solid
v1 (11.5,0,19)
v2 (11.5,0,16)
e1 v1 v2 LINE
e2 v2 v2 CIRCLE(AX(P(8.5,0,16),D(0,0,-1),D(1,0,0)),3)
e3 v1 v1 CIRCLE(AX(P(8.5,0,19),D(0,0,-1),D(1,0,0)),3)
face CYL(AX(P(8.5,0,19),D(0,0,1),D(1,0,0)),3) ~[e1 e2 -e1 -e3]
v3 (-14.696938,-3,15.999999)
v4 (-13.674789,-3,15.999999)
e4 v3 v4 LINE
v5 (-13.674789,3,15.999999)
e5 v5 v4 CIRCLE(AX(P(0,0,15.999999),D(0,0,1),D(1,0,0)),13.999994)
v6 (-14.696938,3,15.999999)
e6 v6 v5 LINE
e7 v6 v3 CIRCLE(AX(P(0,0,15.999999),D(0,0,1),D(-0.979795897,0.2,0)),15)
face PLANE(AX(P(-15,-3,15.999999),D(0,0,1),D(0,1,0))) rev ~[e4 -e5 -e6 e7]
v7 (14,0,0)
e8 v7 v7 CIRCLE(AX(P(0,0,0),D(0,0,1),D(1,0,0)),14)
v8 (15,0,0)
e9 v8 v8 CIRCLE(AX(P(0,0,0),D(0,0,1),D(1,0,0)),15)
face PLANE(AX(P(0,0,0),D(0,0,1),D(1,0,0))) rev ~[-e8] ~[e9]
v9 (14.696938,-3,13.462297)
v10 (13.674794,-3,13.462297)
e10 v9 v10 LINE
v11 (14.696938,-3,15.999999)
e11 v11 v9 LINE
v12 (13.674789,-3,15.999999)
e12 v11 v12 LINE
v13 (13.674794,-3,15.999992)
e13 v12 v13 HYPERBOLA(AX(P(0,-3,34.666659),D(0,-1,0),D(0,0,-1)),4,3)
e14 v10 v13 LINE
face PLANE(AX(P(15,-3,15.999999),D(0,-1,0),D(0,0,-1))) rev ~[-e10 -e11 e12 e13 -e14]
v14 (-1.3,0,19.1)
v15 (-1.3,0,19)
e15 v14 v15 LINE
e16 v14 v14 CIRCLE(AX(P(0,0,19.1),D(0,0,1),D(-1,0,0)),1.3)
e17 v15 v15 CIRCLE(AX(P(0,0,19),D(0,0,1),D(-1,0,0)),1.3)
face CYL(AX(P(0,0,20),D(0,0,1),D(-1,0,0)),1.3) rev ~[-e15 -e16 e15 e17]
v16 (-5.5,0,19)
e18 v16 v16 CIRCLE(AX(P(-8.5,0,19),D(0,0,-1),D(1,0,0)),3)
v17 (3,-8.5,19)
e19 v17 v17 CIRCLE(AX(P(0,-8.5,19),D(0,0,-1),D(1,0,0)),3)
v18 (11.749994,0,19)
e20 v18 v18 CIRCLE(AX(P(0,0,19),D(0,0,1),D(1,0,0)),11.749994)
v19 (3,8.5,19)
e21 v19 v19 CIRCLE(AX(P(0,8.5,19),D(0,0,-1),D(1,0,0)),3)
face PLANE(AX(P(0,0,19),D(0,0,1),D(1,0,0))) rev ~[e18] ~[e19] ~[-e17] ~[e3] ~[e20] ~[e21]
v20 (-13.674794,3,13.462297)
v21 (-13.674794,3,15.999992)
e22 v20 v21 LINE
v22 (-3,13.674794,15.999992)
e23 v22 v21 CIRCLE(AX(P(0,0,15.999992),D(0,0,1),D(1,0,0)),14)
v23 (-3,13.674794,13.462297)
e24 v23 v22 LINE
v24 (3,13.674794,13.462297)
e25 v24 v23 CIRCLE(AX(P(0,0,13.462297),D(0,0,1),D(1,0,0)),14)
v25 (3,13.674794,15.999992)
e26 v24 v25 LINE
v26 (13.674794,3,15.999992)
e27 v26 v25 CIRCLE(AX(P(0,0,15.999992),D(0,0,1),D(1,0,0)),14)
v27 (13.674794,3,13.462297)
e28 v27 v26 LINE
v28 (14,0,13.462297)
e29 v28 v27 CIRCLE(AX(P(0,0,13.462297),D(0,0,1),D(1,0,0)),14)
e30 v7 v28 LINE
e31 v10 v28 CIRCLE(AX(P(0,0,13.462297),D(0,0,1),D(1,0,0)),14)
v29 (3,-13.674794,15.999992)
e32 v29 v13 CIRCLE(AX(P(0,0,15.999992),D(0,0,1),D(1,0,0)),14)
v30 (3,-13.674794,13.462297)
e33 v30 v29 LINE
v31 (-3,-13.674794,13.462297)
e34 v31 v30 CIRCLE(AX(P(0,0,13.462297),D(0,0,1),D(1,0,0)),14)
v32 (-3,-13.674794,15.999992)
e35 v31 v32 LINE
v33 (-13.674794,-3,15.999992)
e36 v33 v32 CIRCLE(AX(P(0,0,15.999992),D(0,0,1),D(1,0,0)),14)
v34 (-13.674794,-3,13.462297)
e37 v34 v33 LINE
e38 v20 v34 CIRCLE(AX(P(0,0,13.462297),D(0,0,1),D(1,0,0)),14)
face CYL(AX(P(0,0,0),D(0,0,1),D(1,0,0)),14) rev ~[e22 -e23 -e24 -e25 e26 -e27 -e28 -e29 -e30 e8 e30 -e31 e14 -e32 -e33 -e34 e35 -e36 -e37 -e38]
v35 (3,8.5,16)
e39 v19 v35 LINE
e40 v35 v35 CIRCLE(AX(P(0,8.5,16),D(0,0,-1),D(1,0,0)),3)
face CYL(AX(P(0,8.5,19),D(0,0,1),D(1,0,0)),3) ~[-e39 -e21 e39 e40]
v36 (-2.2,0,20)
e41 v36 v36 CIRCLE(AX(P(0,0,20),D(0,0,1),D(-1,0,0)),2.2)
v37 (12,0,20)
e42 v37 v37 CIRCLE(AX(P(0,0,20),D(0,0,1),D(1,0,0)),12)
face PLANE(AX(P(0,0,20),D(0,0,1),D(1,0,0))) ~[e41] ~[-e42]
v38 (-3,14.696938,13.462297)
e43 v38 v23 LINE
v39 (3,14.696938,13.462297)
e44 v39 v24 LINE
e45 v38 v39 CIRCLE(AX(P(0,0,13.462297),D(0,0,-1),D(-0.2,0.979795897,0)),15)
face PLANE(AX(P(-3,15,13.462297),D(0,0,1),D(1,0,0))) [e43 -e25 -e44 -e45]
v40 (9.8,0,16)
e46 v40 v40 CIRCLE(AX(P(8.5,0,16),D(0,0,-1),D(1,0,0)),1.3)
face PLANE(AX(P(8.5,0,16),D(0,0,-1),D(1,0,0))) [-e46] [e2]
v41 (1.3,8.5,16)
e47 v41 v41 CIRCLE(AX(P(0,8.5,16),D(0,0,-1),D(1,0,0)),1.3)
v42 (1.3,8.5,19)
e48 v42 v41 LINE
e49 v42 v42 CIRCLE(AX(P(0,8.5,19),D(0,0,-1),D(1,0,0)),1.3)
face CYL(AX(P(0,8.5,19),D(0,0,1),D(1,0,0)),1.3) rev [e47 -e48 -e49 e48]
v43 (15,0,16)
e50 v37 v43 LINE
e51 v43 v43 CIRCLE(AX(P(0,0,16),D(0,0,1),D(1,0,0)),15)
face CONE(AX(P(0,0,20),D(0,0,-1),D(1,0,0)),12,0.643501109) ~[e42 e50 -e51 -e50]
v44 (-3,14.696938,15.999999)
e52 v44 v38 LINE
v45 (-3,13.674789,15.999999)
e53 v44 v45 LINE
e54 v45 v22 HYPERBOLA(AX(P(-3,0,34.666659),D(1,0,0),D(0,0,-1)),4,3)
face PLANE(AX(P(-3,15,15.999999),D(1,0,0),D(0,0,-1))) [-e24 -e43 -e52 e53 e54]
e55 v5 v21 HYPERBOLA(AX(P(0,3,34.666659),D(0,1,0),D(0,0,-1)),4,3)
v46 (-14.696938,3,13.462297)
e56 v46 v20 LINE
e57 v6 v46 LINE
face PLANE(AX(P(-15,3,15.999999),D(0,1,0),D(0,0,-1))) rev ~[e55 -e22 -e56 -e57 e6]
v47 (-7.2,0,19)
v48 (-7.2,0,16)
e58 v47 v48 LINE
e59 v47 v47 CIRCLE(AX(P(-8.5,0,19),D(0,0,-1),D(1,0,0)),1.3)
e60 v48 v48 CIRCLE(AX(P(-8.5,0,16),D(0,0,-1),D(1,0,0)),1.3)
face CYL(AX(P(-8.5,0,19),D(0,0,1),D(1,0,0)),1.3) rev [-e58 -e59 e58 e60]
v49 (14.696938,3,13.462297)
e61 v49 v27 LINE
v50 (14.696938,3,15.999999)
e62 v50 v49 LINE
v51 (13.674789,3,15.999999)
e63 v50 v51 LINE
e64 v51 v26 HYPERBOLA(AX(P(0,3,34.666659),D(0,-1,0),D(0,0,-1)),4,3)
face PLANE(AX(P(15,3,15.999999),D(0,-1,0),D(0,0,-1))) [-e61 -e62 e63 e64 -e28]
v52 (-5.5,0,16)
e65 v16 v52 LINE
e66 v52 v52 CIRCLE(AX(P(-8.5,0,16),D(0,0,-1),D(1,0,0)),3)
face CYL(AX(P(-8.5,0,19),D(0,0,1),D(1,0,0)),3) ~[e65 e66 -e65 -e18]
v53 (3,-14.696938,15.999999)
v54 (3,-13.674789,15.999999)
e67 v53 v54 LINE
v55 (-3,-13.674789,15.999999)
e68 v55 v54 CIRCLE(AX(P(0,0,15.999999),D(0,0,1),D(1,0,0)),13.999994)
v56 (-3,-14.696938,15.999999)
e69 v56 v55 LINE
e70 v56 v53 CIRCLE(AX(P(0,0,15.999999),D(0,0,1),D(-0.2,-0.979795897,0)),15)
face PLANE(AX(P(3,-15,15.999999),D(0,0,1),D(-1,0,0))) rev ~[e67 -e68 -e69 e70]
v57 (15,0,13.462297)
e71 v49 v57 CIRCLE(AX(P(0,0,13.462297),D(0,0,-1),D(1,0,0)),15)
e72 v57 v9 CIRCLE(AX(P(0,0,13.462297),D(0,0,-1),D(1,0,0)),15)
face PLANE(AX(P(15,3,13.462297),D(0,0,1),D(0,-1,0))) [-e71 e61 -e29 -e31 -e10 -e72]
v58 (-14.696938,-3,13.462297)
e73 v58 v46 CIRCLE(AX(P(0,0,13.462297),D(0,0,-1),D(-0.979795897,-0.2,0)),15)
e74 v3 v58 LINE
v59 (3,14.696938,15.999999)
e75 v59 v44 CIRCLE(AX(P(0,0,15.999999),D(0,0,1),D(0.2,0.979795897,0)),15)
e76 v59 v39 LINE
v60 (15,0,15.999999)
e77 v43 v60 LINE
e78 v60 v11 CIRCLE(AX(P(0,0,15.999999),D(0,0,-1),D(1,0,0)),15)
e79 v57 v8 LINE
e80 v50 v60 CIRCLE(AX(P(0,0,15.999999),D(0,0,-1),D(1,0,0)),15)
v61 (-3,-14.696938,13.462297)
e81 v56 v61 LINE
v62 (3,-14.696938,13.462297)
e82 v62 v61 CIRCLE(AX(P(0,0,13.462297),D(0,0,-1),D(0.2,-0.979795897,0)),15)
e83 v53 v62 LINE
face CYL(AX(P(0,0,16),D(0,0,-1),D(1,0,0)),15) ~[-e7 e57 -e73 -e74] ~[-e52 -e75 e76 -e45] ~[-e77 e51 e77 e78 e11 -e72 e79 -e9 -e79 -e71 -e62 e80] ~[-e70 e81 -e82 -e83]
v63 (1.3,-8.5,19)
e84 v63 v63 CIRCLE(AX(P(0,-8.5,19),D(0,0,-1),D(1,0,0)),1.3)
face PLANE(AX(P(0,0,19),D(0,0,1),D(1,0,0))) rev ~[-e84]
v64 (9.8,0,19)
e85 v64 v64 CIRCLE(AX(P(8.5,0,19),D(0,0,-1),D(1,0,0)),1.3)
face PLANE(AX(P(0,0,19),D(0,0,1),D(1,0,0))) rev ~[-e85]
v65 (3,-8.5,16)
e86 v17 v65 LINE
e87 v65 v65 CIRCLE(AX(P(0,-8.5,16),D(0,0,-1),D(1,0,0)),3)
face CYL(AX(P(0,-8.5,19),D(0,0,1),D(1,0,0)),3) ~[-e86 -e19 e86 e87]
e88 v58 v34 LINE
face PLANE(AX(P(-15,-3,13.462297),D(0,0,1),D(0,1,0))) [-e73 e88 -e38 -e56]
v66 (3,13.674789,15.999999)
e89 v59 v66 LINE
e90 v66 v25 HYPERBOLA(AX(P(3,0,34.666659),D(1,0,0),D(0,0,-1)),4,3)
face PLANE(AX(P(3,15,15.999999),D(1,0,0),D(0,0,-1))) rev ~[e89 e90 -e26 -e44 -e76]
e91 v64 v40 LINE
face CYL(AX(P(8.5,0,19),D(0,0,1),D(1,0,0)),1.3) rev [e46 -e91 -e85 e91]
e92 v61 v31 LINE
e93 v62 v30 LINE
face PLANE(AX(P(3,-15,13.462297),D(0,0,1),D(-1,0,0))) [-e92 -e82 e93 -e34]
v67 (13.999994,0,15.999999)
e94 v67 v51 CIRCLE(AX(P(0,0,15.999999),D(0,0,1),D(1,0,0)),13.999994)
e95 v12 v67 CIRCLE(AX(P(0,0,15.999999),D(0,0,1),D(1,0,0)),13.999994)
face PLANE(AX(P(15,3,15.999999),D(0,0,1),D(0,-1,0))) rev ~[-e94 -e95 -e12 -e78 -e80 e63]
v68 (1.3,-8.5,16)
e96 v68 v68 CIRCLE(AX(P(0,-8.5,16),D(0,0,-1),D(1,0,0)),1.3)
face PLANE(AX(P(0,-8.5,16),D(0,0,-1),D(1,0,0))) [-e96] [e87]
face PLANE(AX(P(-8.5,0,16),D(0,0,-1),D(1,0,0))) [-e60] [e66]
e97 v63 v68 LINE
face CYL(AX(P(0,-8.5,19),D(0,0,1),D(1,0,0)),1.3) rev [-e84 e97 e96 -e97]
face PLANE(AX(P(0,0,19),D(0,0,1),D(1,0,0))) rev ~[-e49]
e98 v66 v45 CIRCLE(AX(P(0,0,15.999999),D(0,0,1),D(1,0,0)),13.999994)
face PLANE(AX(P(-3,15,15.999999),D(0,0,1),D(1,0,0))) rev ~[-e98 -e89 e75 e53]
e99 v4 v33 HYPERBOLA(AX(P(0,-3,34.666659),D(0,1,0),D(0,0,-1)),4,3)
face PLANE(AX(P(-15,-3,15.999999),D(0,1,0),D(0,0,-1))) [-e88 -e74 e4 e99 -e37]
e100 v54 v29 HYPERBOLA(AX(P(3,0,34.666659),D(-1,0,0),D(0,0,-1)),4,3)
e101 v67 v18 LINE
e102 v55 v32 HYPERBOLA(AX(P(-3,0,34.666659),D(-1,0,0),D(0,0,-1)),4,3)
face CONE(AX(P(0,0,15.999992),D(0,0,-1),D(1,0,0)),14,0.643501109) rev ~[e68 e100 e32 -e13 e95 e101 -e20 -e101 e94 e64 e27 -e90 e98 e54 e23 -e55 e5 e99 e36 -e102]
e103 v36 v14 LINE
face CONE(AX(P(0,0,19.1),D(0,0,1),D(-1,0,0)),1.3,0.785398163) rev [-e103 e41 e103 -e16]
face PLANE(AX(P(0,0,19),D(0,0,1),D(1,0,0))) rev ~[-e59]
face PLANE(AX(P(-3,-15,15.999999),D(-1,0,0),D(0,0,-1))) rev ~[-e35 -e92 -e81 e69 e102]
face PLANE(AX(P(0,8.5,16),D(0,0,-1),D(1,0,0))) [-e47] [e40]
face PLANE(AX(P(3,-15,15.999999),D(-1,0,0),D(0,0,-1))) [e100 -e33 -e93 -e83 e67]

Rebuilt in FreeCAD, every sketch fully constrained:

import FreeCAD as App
import Part
import Sketcher
from FreeCAD import Vector


def edges_at(feature, points):
    """Names of the edges that pass closest to the given points."""
    edges = feature.Shape.Edges
    near = lambda p: min(range(len(edges)), key=lambda i: edges[i].distToShape(Part.Vertex(*p))[0])
    return sorted({f"Edge{near(p) + 1}" for p in points})

doc = App.newDocument("Part")
body = doc.addObject("PartDesign::Body", "Body")

sketch1 = doc.addObject("Sketcher::SketchObject", "Sketch")
body.addObject(sketch1)
sketch1.AttachmentSupport = (doc.XZ_Plane, [""])
sketch1.MapMode = "FlatFace"
sketch1.addGeometry([
    Part.LineSegment(Vector(12, 20, 0), Vector(0, 20, 0)),
    Part.LineSegment(Vector(0, 20, 0), Vector(0, 19, 0)),
    Part.LineSegment(Vector(0, 19, 0), Vector(11.7, 19, 0)),
    Part.LineSegment(Vector(11.7, 19, 0), Vector(14, 16, 0)),
    Part.LineSegment(Vector(14, 16, 0), Vector(14, 0, 0)),
    Part.LineSegment(Vector(14, 0, 0), Vector(15, 0, 0)),
    Part.LineSegment(Vector(15, 0, 0), Vector(15, 16, 0)),
    Part.LineSegment(Vector(15, 16, 0), Vector(12, 20, 0)),
], False)
sketch1.addConstraint([
    Sketcher.Constraint("Coincident", 0, 2, 1, 1),
    Sketcher.Constraint("Coincident", 1, 2, 2, 1),
    Sketcher.Constraint("Coincident", 2, 2, 3, 1),
    Sketcher.Constraint("Coincident", 3, 2, 4, 1),
    Sketcher.Constraint("Coincident", 4, 2, 5, 1),
    Sketcher.Constraint("Coincident", 5, 2, 6, 1),
    Sketcher.Constraint("Coincident", 6, 2, 7, 1),
    Sketcher.Constraint("Coincident", 7, 2, 0, 1),
    Sketcher.Constraint("Horizontal", 0),
    Sketcher.Constraint("Vertical", 1),
    Sketcher.Constraint("Horizontal", 2),
    Sketcher.Constraint("Vertical", 4),
    Sketcher.Constraint("Horizontal", 5),
    Sketcher.Constraint("Vertical", 6),
    Sketcher.Constraint("PointOnObject", 0, 2, -2),
    Sketcher.Constraint("PointOnObject", 4, 2, -1),
    Sketcher.Constraint("Parallel", 3, 7),
    Sketcher.Constraint("Equal", 5, 1),
    Sketcher.Constraint("DistanceX", 0, 2, 0, 1, 12.0),
    Sketcher.Constraint("DistanceX", 5, 1, 5, 2, 1.0),
    Sketcher.Constraint("DistanceY", 6, 1, 6, 2, 16.0),
    Sketcher.Constraint("Distance", 7, 5.0),
    Sketcher.Constraint("DistanceY", -1, 1, 0, 2, 20.0),
    Sketcher.Constraint("Distance", 3, 3.75001),
])
revolution = doc.addObject("PartDesign::Revolution", "Revolution")
body.addObject(revolution)
revolution.Profile = sketch1
revolution.ReferenceAxis = (sketch1, ["V_Axis"])
revolution.Angle = 360

sketch2 = doc.addObject("Sketcher::SketchObject", "Sketch001")
body.addObject(sketch2)
sketch2.AttachmentSupport = (doc.XY_Plane, [""])
sketch2.MapMode = "FlatFace"
sketch2.AttachmentOffset = App.Placement(Vector(0, 0, 20), App.Rotation())
sketch2.addGeometry(Part.Circle(Vector(0, 0, 0), Vector(0, 0, 1), 1.3), False)
sketch2.addConstraint([
    Sketcher.Constraint("Coincident", 0, 3, -1, 1),
    Sketcher.Constraint("Diameter", 0, 2.6),
])
pocket1 = doc.addObject("PartDesign::Pocket", "Pocket")
body.addObject(pocket1)
pocket1.Profile = sketch2
pocket1.Length = 1

sketch3 = doc.addObject("Sketcher::SketchObject", "Sketch002")
body.addObject(sketch3)
sketch3.AttachmentSupport = (doc.XZ_Plane, [""])
sketch3.MapMode = "FlatFace"
sketch3.AttachmentOffset = App.Placement(Vector(0, 0, -15), App.Rotation())
sketch3.addGeometry([
    Part.LineSegment(Vector(-3, 13.5, 0), Vector(-3, 16, 0)),
    Part.LineSegment(Vector(-3, 16, 0), Vector(3, 16, 0)),
    Part.LineSegment(Vector(3, 16, 0), Vector(3, 13.5, 0)),
    Part.LineSegment(Vector(3, 13.5, 0), Vector(-3, 13.5, 0)),
], False)
sketch3.addConstraint([
    Sketcher.Constraint("Coincident", 0, 2, 1, 1),
    Sketcher.Constraint("Coincident", 1, 2, 2, 1),
    Sketcher.Constraint("Coincident", 2, 2, 3, 1),
    Sketcher.Constraint("Coincident", 3, 2, 0, 1),
    Sketcher.Constraint("Vertical", 0),
    Sketcher.Constraint("Horizontal", 1),
    Sketcher.Constraint("Vertical", 2),
    Sketcher.Constraint("Horizontal", 3),
    Sketcher.Constraint("DistanceX", 1, 1, 1, 2, 6.0),
    Sketcher.Constraint("DistanceX", 0, 2, -1, 1, 3.0),
    Sketcher.Constraint("DistanceY", -1, 1, 0, 2, 15.999999),
    Sketcher.Constraint("DistanceY", 0, 1, 0, 2, 2.537703),
])
pocket2 = doc.addObject("PartDesign::Pocket", "Pocket001")
body.addObject(pocket2)
pocket2.Profile = sketch3
pocket2.Length = 3
pocket2.Reversed = True
doc.recompute()

polarpattern = doc.addObject("PartDesign::PolarPattern", "PolarPattern")
body.addObject(polarpattern)
polarpattern.Originals = [pocket2]
polarpattern.Axis = (doc.Z_Axis, [""])
polarpattern.Angle = 360
polarpattern.Occurrences = 4
body.Tip = polarpattern

sketch4 = doc.addObject("Sketcher::SketchObject", "Sketch003")
body.addObject(sketch4)
sketch4.AttachmentSupport = (doc.XY_Plane, [""])
sketch4.MapMode = "FlatFace"
sketch4.AttachmentOffset = App.Placement(Vector(0, 0, 19), App.Rotation())
sketch4.addGeometry([
    Part.Circle(Vector(-8.5, 0, 0), Vector(0, 0, 1), 3),
    Part.Circle(Vector(-8.5, 0, 0), Vector(0, 0, 1), 1.3),
    Part.Circle(Vector(0, -8.5, 0), Vector(0, 0, 1), 3),
    Part.Circle(Vector(0, -8.5, 0), Vector(0, 0, 1), 1.3),
    Part.Circle(Vector(8.5, 0, 0), Vector(0, 0, 1), 3),
    Part.Circle(Vector(8.5, 0, 0), Vector(0, 0, 1), 1.3),
    Part.Circle(Vector(0, 8.5, 0), Vector(0, 0, 1), 3),
    Part.Circle(Vector(0, 8.5, 0), Vector(0, 0, 1), 1.3),
], False)
sketch4.addConstraint([
    Sketcher.Constraint("Coincident", 1, 3, 0, 3),
    Sketcher.Constraint("Coincident", 3, 3, 2, 3),
    Sketcher.Constraint("Coincident", 5, 3, 4, 3),
    Sketcher.Constraint("Coincident", 7, 3, 6, 3),
    Sketcher.Constraint("Equal", 0, 2),
    Sketcher.Constraint("Equal", 1, 3),
    Sketcher.Constraint("Equal", 2, 4),
    Sketcher.Constraint("Equal", 3, 5),
    Sketcher.Constraint("Equal", 4, 6),
    Sketcher.Constraint("Equal", 5, 7),
    Sketcher.Constraint("Symmetric", 0, 3, 4, 3, -1, 1),
    Sketcher.Constraint("Symmetric", 2, 3, 6, 3, -1, 1),
    Sketcher.Constraint("PointOnObject", 0, 3, -1),
    Sketcher.Constraint("PointOnObject", 2, 3, -2),
    Sketcher.Constraint("Diameter", 0, 6.0),
    Sketcher.Constraint("Diameter", 1, 2.6),
    Sketcher.Constraint("DistanceX", 0, 3, 4, 3, 17.0),
    Sketcher.Constraint("DistanceY", 2, 3, 6, 3, 17.0),
])
pad1 = doc.addObject("PartDesign::Pad", "Pad")
body.addObject(pad1)
pad1.Profile = sketch4
pad1.Length = 3
pad1.Reversed = True
doc.recompute()

chamfer = doc.addObject("PartDesign::Chamfer", "Chamfer")
body.addObject(chamfer)
chamfer.Base = (pad1, edges_at(pad1, [(1.3, 0, 20)]))
chamfer.Size = 0.9

doc.recompute()
